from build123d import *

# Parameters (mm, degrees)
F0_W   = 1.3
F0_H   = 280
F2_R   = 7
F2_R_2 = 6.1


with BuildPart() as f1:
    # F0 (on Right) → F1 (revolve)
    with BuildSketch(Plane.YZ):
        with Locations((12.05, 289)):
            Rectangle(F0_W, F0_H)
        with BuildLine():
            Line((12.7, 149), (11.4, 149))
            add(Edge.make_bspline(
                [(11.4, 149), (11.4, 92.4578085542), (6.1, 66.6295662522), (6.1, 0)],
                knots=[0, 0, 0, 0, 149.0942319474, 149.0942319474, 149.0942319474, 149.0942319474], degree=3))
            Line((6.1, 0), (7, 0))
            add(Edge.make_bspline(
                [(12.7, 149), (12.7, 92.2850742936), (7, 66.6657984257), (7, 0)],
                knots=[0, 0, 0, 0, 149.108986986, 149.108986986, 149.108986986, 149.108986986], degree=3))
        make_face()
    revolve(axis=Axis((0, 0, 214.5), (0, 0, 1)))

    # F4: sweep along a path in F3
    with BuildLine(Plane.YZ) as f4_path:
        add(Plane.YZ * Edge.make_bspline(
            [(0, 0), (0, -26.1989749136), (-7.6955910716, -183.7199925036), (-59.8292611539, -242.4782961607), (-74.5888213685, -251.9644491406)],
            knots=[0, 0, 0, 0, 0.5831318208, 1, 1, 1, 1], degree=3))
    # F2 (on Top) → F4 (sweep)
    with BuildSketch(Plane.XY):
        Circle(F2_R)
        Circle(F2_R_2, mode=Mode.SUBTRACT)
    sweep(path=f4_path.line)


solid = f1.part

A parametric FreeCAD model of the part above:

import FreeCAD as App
import Part
import Sketcher
Q = App.Units.Quantity

doc = App.newDocument("Part")
params = doc.addObject("Spreadsheet::Sheet", "Params")
for row, (alias, value) in enumerate([
    ("sketch1_height", "280 mm"),
    ("revolution_angle", "360 deg"),
    ("sketch2_diameter", "14 mm"),
    ("sketch2_diameter2", "12.2 mm"),
], start=1):
    params.set(f"A{row}", alias)
    params.set(f"B{row}", "=" + value)
    params.setAlias(f"B{row}", alias)

body = doc.addObject("PartDesign::Body", "Body")

# Sketch on YZ plane
sketch1 = body.newObject("Sketcher::SketchObject", "Sketch")
sketch1.AttachmentSupport = (doc.getObject("YZ_Plane"), [""])
sketch1.MapMode = "FlatFace"
sketch1.addGeometry([
    Part.LineSegment(App.Vector(11.4, 429, 0), App.Vector(11.4, 149, 0)),  # 0
    Part.BSplineCurve([App.Vector(11.4, 149, 0), App.Vector(11.4, 92.457809, 0), App.Vector(6.1, 66.629566, 0), App.Vector(6.1, 0, 0)], [4, 4], [0, 149.094231947], False, 3, [1, 1, 1, 1], False),  # 1
    Part.LineSegment(App.Vector(6.1, 0, 0), App.Vector(7, 0, 0)),  # 2
    Part.BSplineCurve([App.Vector(12.7, 149, 0), App.Vector(12.7, 92.285074, 0), App.Vector(7, 66.665798, 0), App.Vector(7, 0, 0)], [4, 4], [0, 149.108986986], False, 3, [1, 1, 1, 1], False),  # 3
    Part.LineSegment(App.Vector(12.7, 149, 0), App.Vector(12.7, 429, 0)),  # 4
    Part.LineSegment(App.Vector(12.7, 429, 0), App.Vector(11.4, 429, 0)),  # 5
], False)
sketch1.addConstraint([
    Sketcher.Constraint("Block", 1),
    Sketcher.Constraint("Block", 3),
    Sketcher.Constraint("Coincident", 0, 2, 1, 1),
    Sketcher.Constraint("Coincident", 1, 2, 2, 1),
    Sketcher.Constraint("Coincident", 2, 2, 3, 2),
    Sketcher.Constraint("Coincident", 3, 1, 4, 1),
    Sketcher.Constraint("Coincident", 4, 2, 5, 1),
    Sketcher.Constraint("Coincident", 5, 2, 0, 1),
    Sketcher.Constraint("Vertical", 0),
    Sketcher.Constraint("Vertical", 4),
    Sketcher.Constraint("Horizontal", 5),
    Sketcher.Constraint("DistanceY", 0, 2, 0, 1, Q("280 mm")),
])
sketch1.setExpression("Constraints[11]", "Params.sketch1_height")
revolution = body.newObject("PartDesign::Revolution", "Revolution")
revolution.Profile = sketch1
revolution.ReferenceAxis = (sketch1, ["V_Axis"])
revolution.setExpression("Angle", "Params.revolution_angle")

# Sketch on XY plane
sketch2 = body.newObject("Sketcher::SketchObject", "Sketch001")
sketch2.AttachmentSupport = (doc.getObject("XY_Plane"), [""])
sketch2.MapMode = "FlatFace"
sketch2.addGeometry([
    Part.Circle(App.Vector(0, 0, 0), App.Vector(0, 0, 1), 7),
    Part.Circle(App.Vector(0, 0, 0), App.Vector(0, 0, 1), 6),
], False)
sketch2.addConstraint([
    Sketcher.Constraint("Coincident", 0, 3, -1, 1),
    Sketcher.Constraint("Coincident", 1, 3, -1, 1),
    Sketcher.Constraint("Diameter", 0, Q("14 mm")),
    Sketcher.Constraint("Diameter", 1, Q("12.2 mm")),
])
sketch2.setExpression("Constraints[2]", "Params.sketch2_diameter")
sketch2.setExpression("Constraints[3]", "Params.sketch2_diameter2")

# Sketch on YZ plane
sketch3 = body.newObject("Sketcher::SketchObject", "Sketch002")
sketch3.AttachmentSupport = (doc.getObject("YZ_Plane"), [""])
sketch3.MapMode = "FlatFace"
sketch3.addGeometry(Part.BSplineCurve([App.Vector(0, 0, 0), App.Vector(0, -26.198975, 0), App.Vector(-7.695591, -183.719993, 0), App.Vector(-59.829261, -242.478296, 0), App.Vector(-74.588821, -251.964449, 0)], [4, 1, 4], [0, 0.583131821, 1], False, 3, [1, 1, 1, 1, 1], False), False)
sketch3.addConstraint(Sketcher.Constraint("Block", 0))
doc.recompute()

additivepipe = body.newObject("PartDesign::AdditivePipe", "AdditivePipe")
additivepipe.Profile = sketch2
additivepipe.Spine = (sketch3, ["Edge1"])

doc.recompute()
